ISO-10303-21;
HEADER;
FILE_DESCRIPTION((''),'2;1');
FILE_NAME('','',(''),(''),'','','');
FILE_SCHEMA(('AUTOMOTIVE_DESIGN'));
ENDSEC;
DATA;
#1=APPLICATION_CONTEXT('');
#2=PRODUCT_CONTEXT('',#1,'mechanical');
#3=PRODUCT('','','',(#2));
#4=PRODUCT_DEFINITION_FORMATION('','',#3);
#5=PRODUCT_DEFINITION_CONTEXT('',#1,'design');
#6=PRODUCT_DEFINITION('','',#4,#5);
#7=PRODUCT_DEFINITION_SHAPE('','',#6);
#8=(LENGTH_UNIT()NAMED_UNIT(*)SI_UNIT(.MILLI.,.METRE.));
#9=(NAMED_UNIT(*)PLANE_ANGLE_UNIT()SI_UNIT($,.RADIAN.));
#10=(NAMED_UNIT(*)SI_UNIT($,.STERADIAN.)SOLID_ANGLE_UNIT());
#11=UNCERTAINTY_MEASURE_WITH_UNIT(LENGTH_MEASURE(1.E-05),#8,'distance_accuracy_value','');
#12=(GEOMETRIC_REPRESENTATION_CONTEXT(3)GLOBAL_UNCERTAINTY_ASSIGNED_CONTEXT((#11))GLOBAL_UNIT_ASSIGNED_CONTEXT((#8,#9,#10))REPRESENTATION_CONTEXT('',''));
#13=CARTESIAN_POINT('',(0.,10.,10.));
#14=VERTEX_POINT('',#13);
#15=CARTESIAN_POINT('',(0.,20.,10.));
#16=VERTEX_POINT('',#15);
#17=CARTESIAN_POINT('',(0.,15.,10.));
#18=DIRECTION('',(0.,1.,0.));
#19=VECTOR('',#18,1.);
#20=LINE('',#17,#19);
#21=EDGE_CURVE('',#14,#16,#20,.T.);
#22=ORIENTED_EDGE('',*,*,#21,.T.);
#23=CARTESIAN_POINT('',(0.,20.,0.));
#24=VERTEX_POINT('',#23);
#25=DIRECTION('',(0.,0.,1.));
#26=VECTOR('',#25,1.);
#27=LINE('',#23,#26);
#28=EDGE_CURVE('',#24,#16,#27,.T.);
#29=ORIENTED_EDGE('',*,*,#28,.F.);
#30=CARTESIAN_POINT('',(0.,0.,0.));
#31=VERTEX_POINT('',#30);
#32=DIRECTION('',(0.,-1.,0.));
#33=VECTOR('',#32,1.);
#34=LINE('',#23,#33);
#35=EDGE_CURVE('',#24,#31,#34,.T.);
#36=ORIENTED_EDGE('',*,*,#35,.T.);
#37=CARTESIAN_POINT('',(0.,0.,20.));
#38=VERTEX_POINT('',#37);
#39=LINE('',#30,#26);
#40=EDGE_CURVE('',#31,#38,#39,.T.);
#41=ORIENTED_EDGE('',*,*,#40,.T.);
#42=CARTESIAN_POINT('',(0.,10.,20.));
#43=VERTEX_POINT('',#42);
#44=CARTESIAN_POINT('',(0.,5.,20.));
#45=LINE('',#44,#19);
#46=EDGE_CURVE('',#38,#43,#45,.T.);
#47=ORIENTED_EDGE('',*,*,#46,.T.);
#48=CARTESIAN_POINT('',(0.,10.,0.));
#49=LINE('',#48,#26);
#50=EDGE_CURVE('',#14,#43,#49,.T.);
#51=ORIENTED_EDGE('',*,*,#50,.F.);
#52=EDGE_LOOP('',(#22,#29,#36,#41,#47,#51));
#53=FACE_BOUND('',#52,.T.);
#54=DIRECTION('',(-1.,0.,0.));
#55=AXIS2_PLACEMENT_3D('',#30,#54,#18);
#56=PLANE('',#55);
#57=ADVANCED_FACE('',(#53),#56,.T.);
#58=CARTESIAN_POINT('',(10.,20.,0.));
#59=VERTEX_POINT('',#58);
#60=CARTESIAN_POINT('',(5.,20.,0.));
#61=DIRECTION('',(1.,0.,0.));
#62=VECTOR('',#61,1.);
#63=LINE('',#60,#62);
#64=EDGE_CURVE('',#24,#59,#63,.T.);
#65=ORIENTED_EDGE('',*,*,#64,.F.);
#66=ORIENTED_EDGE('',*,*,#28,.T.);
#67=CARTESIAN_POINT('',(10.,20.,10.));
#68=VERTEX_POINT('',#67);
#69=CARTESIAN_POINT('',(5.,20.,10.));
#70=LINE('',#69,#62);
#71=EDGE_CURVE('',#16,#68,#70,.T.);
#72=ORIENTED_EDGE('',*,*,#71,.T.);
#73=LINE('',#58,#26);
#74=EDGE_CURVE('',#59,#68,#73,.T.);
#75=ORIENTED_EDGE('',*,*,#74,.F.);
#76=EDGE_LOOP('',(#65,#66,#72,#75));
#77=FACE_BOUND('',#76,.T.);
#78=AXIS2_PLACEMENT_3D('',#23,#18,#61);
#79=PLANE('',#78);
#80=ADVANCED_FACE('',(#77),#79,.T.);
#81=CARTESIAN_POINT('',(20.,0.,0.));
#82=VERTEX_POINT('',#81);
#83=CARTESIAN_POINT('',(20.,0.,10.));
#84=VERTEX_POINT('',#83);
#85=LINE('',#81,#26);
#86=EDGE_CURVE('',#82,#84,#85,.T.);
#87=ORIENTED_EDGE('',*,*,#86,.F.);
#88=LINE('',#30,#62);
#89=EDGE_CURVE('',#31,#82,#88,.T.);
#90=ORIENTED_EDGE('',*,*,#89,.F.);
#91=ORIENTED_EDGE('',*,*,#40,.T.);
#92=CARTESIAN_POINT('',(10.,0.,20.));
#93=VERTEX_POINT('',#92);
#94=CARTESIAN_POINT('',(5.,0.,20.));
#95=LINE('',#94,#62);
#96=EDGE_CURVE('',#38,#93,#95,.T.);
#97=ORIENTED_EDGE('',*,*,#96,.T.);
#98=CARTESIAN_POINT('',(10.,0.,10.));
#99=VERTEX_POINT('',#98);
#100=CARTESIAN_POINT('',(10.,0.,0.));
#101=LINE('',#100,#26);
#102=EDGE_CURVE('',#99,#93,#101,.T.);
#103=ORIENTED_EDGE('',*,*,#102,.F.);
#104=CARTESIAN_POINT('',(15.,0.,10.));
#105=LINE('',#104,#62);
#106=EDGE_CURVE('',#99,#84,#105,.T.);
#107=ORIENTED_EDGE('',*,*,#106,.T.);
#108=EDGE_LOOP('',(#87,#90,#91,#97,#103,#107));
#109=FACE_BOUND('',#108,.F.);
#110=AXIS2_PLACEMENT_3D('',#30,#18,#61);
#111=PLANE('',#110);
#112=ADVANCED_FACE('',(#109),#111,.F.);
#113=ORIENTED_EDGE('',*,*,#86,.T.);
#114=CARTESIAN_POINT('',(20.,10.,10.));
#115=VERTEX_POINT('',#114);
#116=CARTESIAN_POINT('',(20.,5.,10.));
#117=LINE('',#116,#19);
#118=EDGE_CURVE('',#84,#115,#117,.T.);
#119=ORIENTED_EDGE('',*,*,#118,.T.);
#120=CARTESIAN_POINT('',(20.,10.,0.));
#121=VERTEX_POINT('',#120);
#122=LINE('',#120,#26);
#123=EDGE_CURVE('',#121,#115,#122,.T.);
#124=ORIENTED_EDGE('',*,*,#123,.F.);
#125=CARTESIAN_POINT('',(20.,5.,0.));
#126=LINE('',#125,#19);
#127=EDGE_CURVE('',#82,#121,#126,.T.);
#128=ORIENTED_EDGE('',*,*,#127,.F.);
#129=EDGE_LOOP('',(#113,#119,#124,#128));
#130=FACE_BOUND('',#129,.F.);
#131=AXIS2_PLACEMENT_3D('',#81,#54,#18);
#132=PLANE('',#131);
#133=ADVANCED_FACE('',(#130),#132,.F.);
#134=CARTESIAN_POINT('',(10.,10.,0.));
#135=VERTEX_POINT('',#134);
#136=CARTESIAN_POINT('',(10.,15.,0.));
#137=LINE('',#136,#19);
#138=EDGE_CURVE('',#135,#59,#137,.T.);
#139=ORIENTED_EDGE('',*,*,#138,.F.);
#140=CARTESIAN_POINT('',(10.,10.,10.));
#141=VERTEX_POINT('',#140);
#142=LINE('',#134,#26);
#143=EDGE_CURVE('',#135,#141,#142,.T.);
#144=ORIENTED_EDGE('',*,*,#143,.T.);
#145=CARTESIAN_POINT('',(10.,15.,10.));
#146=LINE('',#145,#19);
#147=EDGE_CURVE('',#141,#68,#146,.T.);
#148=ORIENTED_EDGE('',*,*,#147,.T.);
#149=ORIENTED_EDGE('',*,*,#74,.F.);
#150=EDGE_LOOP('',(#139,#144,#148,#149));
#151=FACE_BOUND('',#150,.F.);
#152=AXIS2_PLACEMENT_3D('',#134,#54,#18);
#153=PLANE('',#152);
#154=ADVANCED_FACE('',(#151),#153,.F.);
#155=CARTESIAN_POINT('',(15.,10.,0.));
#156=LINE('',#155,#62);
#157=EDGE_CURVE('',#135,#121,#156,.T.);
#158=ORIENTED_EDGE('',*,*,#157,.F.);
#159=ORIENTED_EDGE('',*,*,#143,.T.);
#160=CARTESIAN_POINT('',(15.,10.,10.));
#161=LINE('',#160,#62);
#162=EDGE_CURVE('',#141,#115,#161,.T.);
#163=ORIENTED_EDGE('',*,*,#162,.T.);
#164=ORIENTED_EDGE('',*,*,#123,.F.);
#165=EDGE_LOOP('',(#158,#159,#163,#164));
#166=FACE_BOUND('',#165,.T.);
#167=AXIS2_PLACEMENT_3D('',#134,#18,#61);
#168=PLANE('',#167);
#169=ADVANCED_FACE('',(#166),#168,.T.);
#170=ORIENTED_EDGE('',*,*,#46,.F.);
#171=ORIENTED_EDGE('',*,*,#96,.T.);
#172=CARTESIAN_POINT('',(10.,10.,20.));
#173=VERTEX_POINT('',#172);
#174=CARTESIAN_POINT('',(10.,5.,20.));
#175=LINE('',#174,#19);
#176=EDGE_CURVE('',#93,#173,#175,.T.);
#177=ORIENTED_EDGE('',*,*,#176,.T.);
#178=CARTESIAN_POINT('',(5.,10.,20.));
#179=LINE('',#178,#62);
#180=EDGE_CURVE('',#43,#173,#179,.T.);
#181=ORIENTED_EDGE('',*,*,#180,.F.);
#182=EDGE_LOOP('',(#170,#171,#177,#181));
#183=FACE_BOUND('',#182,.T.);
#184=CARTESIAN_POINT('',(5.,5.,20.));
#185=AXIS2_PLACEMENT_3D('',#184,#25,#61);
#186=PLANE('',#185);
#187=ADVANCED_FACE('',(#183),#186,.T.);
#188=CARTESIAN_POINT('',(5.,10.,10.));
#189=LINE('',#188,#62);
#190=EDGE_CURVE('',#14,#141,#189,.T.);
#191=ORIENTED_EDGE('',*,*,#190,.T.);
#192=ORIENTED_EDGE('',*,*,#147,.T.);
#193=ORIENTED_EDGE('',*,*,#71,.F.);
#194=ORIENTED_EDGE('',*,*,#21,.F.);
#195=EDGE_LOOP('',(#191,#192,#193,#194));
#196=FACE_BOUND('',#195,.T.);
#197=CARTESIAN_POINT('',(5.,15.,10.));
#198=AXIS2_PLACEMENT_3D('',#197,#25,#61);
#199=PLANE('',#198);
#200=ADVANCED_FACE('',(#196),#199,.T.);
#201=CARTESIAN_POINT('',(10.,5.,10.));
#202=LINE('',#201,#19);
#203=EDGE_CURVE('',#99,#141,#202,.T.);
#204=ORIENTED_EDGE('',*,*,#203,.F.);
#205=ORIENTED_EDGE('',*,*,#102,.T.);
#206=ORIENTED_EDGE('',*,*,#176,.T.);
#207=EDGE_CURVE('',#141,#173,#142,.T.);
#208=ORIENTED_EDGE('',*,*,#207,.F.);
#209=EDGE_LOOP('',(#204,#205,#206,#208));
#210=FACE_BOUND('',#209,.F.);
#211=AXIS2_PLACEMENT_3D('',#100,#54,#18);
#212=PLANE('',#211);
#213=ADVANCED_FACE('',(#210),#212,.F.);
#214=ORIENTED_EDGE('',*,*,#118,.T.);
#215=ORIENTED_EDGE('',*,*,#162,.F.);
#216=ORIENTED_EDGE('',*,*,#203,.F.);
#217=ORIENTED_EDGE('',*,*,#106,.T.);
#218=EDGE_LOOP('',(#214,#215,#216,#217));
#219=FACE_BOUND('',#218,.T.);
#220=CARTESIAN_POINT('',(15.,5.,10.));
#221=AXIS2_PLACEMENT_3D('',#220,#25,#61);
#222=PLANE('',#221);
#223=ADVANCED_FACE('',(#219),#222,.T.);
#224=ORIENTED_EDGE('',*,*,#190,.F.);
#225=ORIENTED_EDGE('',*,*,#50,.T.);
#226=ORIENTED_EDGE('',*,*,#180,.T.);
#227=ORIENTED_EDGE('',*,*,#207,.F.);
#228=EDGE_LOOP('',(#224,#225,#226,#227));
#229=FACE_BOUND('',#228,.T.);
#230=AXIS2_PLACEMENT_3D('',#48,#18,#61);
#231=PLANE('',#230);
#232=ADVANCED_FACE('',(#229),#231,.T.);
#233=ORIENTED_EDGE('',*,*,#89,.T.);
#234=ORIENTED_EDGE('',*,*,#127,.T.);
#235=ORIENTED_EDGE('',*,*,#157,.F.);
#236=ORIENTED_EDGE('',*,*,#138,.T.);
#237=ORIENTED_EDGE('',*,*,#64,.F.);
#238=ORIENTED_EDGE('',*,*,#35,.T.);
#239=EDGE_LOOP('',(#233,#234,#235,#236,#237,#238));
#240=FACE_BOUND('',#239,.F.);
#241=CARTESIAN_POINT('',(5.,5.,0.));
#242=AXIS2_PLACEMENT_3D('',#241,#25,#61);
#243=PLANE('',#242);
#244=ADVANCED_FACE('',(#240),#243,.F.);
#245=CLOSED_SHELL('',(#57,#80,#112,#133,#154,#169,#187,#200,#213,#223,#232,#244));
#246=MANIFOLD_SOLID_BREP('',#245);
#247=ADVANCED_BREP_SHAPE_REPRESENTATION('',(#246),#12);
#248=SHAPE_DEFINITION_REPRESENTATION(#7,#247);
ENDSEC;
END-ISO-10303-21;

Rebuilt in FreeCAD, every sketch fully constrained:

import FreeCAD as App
import Part
import Sketcher
Q = App.Units.Quantity


def add_polygon(sketch, points):
    """Adds a closed chain of lines whose ends are joined by coincident constraints."""
    first, n = sketch.GeometryCount, len(points)
    for a, b in zip(points, points[1:] + points[:1]):
        sketch.addGeometry(Part.LineSegment(App.Vector(*a, 0), App.Vector(*b, 0)), False)
    for i in range(n):
        sketch.addConstraint(Sketcher.Constraint("Coincident", first + i, 2, first + (i + 1) % n, 1))

doc = App.newDocument("Part")
params = doc.addObject("Spreadsheet::Sheet", "Params")
for row, (alias, value) in enumerate([
    ("sketch1_width", "10 mm"),
    ("pad1_length", "10 mm"),
    ("sketch2_width", "10 mm"),
    ("pad2_length", "20 mm"),
    ("sketch3_width", "10 mm"),
    ("pad3_length", "10 mm"),
], start=1):
    params.set(f"A{row}", alias)
    params.set(f"B{row}", "=" + value)
    params.setAlias(f"B{row}", alias)

body = doc.addObject("PartDesign::Body", "Body")

# Sketch on XY plane
sketch1 = body.newObject("Sketcher::SketchObject", "Sketch")
sketch1.AttachmentSupport = (doc.getObject("XY_Plane"), [""])
sketch1.MapMode = "FlatFace"
add_polygon(sketch1, [(10, 10), (10, 0), (20, 0), (20, 10)])  # lines 0-3
sketch1.addConstraint([
    Sketcher.Constraint("Vertical", 0),
    Sketcher.Constraint("Horizontal", 1),
    Sketcher.Constraint("Vertical", 2),
    Sketcher.Constraint("Horizontal", 3),
    Sketcher.Constraint("PointOnObject", 0, 2, -1),
    Sketcher.Constraint("Equal", 3, 0),
    Sketcher.Constraint("DistanceX", 1, 1, 1, 2, Q("10 mm")),
    Sketcher.Constraint("DistanceX", -1, 1, 0, 2, Q("10 mm")),
])
sketch1.setExpression("Constraints[10]", "Params.sketch1_width")
pad1 = body.newObject("PartDesign::Pad", "Pad")
pad1.Profile = sketch1
pad1.setExpression("Length", "Params.pad1_length")
body2 = doc.addObject("PartDesign::Body", "Body001")

# Sketch on XY plane
sketch2 = body2.newObject("Sketcher::SketchObject", "Sketch001")
sketch2.AttachmentSupport = (doc.getObject("XY_Plane001"), [""])
sketch2.MapMode = "FlatFace"
add_polygon(sketch2, [(0, 10), (0, 0), (10, 0), (10, 10)])  # lines 0-3
sketch2.addConstraint([
    Sketcher.Constraint("Vertical", 0),
    Sketcher.Constraint("Horizontal", 1),
    Sketcher.Constraint("Vertical", 2),
    Sketcher.Constraint("Horizontal", 3),
    Sketcher.Constraint("Coincident", 0, 2, -1, 1),
    Sketcher.Constraint("Equal", 3, 0),
    Sketcher.Constraint("DistanceX", 1, 1, 1, 2, Q("10 mm")),
])
sketch2.setExpression("Constraints[10]", "Params.sketch2_width")
pad2 = body2.newObject("PartDesign::Pad", "Pad001")
pad2.Profile = sketch2
pad2.setExpression("Length", "Params.pad2_length")
body3 = doc.addObject("PartDesign::Body", "Body002")
body3.AllowCompound = True

# Sketch on XY plane
sketch3 = body3.newObject("Sketcher::SketchObject", "Sketch002")
sketch3.AttachmentSupport = (doc.getObject("XY_Plane002"), [""])
sketch3.MapMode = "FlatFace"
add_polygon(sketch3, [(0, 20), (0, 10), (10, 10), (10, 20)])  # lines 0-3
sketch3.addConstraint([
    Sketcher.Constraint("Vertical", 0),
    Sketcher.Constraint("Horizontal", 1),
    Sketcher.Constraint("Vertical", 2),
    Sketcher.Constraint("Horizontal", 3),
    Sketcher.Constraint("PointOnObject", 0, 2, -2),
    Sketcher.Constraint("Equal", 3, 0),
    Sketcher.Constraint("DistanceX", 1, 1, 1, 2, Q("10 mm")),
    Sketcher.Constraint("DistanceY", -1, 1, 0, 2, Q("10 mm")),
])
sketch3.setExpression("Constraints[10]", "Params.sketch3_width")
pad3 = body3.newObject("PartDesign::Pad", "Pad002")
pad3.Profile = sketch3
pad3.setExpression("Length", "Params.pad3_length")
doc.recompute()

boolean = body3.newObject("PartDesign::Boolean", "Boolean")
boolean.Type = "Fuse"
boolean.addObjects([body])
doc.recompute()

boolean2 = body3.newObject("PartDesign::Boolean", "Boolean001")
boolean2.Type = "Fuse"
boolean2.addObjects([body2])

doc.recompute()
